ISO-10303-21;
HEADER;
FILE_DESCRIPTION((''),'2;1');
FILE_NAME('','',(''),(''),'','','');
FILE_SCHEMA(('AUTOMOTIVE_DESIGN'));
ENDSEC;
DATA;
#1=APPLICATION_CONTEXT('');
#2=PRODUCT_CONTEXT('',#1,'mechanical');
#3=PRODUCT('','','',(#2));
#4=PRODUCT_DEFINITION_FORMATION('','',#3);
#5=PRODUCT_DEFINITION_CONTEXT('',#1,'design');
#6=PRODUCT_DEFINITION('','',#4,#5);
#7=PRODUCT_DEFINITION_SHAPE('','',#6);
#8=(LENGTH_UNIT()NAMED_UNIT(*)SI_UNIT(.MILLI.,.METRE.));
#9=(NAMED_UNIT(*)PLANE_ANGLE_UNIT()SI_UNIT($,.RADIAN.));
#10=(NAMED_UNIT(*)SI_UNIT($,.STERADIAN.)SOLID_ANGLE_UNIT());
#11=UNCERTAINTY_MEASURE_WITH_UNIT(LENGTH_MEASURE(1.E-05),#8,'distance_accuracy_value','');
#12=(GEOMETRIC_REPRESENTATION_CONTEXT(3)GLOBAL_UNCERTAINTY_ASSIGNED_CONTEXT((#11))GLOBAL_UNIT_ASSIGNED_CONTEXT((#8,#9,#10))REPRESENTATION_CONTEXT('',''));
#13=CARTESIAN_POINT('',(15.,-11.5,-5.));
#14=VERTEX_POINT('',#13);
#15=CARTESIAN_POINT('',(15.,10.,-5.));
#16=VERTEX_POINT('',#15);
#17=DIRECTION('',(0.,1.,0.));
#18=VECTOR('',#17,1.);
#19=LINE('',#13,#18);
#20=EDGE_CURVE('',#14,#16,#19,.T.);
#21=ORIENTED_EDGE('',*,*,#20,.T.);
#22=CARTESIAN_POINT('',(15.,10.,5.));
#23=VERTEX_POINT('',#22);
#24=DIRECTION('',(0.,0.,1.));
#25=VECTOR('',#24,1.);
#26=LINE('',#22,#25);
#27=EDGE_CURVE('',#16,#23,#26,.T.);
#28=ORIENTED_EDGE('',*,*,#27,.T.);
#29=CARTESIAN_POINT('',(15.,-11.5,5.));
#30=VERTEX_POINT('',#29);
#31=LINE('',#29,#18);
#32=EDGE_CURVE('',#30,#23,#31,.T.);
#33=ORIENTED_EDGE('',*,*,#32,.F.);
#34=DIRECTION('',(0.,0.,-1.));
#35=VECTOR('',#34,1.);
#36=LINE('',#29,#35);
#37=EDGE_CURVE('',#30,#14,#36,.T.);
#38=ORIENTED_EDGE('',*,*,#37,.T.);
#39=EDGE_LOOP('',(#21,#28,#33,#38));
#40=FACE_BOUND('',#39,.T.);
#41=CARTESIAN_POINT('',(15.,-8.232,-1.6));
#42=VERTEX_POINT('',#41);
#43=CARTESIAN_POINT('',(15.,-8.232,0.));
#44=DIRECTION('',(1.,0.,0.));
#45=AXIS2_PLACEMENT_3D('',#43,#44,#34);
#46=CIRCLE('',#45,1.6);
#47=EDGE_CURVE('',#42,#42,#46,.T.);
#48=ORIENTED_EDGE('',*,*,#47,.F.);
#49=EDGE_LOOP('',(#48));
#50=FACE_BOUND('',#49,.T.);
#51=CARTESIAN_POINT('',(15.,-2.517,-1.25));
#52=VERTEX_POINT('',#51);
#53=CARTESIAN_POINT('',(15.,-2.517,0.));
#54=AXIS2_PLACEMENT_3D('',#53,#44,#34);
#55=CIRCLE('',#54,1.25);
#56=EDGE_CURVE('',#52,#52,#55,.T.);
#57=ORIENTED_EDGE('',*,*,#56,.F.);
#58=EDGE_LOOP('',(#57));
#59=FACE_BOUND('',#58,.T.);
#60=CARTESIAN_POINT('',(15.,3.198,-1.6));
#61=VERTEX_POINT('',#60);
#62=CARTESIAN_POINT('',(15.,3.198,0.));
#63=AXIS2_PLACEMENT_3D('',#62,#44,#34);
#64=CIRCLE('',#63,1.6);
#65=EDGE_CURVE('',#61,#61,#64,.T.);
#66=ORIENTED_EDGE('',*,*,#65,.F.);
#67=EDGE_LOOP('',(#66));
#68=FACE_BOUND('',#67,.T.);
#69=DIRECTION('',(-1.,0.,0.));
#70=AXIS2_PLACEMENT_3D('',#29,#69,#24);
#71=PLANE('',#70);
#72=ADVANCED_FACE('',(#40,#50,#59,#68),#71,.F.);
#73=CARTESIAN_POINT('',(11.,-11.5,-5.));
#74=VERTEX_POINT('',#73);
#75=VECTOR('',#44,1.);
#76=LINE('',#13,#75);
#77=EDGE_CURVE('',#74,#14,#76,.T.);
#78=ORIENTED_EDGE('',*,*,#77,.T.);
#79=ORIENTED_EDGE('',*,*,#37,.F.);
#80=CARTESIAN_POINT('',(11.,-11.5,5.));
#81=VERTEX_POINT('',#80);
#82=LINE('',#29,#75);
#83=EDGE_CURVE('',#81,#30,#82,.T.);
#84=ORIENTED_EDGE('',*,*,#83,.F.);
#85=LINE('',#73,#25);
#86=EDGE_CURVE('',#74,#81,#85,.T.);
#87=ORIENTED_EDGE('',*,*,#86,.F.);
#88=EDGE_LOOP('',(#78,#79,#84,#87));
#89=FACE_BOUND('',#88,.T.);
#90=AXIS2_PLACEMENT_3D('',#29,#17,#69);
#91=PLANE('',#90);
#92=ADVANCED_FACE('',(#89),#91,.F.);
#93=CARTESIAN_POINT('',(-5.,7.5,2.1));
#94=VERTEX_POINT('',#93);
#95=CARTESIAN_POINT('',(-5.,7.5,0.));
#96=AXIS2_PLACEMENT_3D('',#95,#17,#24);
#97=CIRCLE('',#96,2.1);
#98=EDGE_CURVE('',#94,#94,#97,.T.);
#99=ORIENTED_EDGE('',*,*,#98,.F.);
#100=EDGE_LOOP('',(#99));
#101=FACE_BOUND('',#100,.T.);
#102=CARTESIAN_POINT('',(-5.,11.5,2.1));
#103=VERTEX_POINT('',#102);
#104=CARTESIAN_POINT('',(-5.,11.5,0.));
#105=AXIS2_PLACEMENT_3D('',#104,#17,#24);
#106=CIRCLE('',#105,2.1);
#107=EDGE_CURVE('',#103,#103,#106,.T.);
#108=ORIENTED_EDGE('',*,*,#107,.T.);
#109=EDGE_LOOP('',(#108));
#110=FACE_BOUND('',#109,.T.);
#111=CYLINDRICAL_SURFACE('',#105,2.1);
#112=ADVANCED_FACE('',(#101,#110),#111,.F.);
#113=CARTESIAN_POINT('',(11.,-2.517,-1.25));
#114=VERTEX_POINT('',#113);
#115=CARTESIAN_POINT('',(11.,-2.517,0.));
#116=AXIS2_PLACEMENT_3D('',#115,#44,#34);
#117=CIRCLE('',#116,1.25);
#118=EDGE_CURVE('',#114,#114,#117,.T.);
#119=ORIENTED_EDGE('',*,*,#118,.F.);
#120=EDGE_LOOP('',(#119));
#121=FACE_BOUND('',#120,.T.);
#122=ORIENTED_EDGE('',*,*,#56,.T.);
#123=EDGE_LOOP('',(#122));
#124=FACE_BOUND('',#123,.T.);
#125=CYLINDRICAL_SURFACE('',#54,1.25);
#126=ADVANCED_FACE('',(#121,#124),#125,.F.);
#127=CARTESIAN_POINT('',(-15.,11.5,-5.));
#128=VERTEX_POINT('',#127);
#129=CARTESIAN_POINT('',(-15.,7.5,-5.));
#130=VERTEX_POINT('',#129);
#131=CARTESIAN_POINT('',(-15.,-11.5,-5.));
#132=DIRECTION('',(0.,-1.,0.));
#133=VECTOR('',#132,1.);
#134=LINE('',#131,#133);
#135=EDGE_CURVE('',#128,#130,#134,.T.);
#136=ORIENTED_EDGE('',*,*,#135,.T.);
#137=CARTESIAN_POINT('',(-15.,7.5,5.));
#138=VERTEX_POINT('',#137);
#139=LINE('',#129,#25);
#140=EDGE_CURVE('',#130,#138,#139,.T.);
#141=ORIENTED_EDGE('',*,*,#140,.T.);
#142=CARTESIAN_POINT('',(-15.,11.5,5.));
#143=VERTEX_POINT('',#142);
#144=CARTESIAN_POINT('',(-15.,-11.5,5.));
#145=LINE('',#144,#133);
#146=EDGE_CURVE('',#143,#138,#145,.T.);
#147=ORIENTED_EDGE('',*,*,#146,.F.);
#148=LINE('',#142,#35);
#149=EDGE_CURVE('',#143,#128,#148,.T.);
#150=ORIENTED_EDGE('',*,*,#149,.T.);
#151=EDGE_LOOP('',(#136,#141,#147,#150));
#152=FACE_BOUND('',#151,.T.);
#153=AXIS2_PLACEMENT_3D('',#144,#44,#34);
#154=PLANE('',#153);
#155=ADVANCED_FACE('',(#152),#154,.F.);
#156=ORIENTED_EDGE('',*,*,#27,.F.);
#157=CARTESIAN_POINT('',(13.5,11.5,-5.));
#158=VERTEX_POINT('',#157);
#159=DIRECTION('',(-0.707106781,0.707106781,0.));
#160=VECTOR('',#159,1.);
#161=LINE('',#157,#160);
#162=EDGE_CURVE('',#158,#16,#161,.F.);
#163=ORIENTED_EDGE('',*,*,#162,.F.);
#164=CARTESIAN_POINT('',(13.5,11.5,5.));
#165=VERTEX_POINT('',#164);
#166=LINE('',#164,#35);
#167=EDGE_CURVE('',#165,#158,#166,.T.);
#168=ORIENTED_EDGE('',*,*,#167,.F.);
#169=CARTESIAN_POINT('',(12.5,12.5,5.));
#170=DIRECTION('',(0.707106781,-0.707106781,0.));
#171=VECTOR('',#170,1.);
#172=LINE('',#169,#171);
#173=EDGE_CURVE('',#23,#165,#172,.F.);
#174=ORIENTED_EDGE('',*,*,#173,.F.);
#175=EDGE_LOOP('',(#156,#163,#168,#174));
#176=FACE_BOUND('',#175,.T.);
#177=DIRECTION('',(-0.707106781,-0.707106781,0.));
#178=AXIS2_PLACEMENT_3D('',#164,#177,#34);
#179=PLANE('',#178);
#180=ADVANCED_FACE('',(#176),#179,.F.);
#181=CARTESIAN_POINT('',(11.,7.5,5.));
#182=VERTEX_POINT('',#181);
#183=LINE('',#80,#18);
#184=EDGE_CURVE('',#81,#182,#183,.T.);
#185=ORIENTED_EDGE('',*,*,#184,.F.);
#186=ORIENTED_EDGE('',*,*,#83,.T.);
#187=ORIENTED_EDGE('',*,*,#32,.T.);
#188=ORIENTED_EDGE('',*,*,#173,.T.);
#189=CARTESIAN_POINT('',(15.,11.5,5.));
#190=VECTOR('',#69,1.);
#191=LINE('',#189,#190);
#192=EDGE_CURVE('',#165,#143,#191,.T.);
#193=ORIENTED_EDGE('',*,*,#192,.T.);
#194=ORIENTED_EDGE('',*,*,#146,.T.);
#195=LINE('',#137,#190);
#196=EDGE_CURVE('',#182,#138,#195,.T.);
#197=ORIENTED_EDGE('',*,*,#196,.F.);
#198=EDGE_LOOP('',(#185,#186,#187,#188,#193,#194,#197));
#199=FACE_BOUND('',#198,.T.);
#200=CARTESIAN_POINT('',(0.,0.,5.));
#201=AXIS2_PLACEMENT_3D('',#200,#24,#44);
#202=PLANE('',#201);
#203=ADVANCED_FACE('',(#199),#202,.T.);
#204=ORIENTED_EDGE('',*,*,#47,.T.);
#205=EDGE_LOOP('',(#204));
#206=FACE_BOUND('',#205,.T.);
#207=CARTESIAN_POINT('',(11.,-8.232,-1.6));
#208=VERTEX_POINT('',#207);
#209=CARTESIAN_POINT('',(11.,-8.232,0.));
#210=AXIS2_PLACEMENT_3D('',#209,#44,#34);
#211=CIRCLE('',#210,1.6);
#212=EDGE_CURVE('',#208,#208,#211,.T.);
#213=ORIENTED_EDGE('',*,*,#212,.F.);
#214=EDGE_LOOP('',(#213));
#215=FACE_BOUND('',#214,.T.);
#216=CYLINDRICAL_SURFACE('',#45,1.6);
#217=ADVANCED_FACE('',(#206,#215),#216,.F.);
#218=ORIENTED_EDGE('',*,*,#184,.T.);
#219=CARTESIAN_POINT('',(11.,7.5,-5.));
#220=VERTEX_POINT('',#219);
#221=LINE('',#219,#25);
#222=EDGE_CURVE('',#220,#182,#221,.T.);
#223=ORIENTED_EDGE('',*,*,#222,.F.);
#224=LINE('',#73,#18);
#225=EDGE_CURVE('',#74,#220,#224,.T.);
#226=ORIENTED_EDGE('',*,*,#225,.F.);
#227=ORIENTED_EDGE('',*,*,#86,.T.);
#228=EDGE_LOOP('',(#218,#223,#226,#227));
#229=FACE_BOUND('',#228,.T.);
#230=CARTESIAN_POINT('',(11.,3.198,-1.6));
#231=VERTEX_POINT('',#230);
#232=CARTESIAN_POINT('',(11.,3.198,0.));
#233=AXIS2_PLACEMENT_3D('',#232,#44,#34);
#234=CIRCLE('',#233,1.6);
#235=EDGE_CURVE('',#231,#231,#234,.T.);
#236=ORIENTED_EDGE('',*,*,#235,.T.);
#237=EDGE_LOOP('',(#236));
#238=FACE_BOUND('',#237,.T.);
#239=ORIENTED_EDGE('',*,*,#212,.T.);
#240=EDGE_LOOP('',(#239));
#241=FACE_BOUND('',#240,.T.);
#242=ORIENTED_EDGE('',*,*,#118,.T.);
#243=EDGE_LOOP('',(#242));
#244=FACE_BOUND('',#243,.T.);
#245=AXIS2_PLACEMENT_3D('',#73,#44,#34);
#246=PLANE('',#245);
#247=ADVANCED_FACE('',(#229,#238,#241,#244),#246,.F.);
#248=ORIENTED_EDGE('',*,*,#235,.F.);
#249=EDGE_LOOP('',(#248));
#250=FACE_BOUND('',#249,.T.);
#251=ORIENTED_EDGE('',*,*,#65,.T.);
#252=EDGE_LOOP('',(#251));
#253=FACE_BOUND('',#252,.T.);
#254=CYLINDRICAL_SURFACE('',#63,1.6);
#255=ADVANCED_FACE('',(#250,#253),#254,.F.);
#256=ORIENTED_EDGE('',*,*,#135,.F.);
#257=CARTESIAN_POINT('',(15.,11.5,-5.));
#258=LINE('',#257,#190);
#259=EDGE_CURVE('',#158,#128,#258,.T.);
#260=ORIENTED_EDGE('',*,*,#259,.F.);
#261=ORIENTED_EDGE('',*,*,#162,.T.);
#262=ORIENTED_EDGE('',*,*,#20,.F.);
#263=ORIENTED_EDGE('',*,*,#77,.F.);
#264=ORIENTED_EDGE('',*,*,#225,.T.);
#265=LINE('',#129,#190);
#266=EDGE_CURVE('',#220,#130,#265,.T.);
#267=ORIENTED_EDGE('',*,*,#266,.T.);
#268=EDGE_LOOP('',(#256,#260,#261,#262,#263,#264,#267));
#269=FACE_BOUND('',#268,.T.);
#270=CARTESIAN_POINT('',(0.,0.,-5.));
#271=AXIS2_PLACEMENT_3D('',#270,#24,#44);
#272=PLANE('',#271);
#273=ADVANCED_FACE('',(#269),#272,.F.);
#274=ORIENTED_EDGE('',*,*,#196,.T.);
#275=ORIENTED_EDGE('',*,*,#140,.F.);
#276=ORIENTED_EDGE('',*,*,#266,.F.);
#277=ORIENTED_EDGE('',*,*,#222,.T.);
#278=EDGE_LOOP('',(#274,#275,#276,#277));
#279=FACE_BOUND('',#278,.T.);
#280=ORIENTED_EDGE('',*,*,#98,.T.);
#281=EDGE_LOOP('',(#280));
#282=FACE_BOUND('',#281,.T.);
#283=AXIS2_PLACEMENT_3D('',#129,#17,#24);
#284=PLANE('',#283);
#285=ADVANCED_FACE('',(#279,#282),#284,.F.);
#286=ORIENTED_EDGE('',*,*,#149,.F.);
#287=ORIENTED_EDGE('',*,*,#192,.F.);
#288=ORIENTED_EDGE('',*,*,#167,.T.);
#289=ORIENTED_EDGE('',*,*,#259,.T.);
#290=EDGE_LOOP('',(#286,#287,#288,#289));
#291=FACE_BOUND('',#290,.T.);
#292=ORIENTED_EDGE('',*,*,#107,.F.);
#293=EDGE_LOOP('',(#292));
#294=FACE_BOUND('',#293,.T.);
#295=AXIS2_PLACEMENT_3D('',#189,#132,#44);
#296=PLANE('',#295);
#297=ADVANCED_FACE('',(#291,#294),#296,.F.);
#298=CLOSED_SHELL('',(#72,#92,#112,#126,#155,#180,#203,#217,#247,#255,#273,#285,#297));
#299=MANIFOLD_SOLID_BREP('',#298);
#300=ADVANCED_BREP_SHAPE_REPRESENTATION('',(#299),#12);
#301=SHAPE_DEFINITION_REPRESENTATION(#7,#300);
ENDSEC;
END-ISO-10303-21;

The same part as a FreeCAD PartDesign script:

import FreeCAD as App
import Part
import Sketcher
Q = App.Units.Quantity


def edges_at(feature, points):
    """Names of the edges that pass closest to the given points."""
    edges = feature.Shape.Edges
    near = lambda p: min(range(len(edges)), key=lambda i: edges[i].distToShape(Part.Vertex(*p))[0])
    return sorted({f"Edge{near(p) + 1}" for p in points})


def add_polygon(sketch, points):
    """Adds a closed chain of lines whose ends are joined by coincident constraints."""
    first, n = sketch.GeometryCount, len(points)
    for a, b in zip(points, points[1:] + points[:1]):
        sketch.addGeometry(Part.LineSegment(App.Vector(*a, 0), App.Vector(*b, 0)), False)
    for i in range(n):
        sketch.addConstraint(Sketcher.Constraint("Coincident", first + i, 2, first + (i + 1) % n, 1))

doc = App.newDocument("Part")
body = doc.addObject("PartDesign::Body", "Body")

# Sketch on XY plane
sketch1 = body.newObject("Sketcher::SketchObject", "Sketch")
sketch1.AttachmentSupport = (doc.getObject("XY_Plane"), [""])
sketch1.MapMode = "FlatFace"
add_polygon(sketch1, [(-15, 12), (-15, -12), (15, -12), (15, 12)])  # lines 0-3
sketch1.addConstraint([
    Sketcher.Constraint("Vertical", 0),
    Sketcher.Constraint("Horizontal", 1),
    Sketcher.Constraint("Vertical", 2),
    Sketcher.Constraint("Horizontal", 3),
    Sketcher.Constraint("Symmetric", 0, 2, 2, 2, -1, 1),
    Sketcher.Constraint("DistanceX", 1, 1, 1, 2, Q("30 mm")),
    Sketcher.Constraint("DistanceY", 0, 2, 0, 1, Q("23 mm")),
])
pad1 = body.newObject("PartDesign::Pad", "Pad")
pad1.Profile = sketch1
pad1.Length = 10
pad1.Midplane = True

# Sketch on XY plane
sketch2 = body.newObject("Sketcher::SketchObject", "Sketch001")
sketch2.AttachmentSupport = (doc.getObject("XY_Plane"), [""])
sketch2.MapMode = "FlatFace"
sketch2.AttachmentOffset = App.Placement(App.Vector(0, 0, 5), App.Rotation())
add_polygon(sketch2, [(-15, 8), (-15, -12), (11, -12), (11, 8)])  # lines 0-3
sketch2.addConstraint([
    Sketcher.Constraint("Vertical", 0),
    Sketcher.Constraint("Horizontal", 1),
    Sketcher.Constraint("Vertical", 2),
    Sketcher.Constraint("Horizontal", 3),
    Sketcher.Constraint("DistanceX", 1, 1, 1, 2, Q("26 mm")),
    Sketcher.Constraint("DistanceY", 0, 2, 0, 1, Q("19 mm")),
    Sketcher.Constraint("DistanceX", 0, 2, -1, 1, Q("15 mm")),
    Sketcher.Constraint("DistanceY", 0, 2, -1, 1, Q("11.5 mm")),
])
pocket1 = body.newObject("PartDesign::Pocket", "Pocket")
pocket1.Profile = sketch2
pocket1.Type = "ThroughAll"
doc.recompute()

chamfer = body.newObject("PartDesign::Chamfer", "Chamfer")
chamfer.Base = (pocket1, edges_at(pocket1, [(15, 11.5, 0)]))
chamfer.Size = 1.5

# Sketch on XZ plane
sketch3 = body.newObject("Sketcher::SketchObject", "Sketch002")
sketch3.AttachmentSupport = (doc.getObject("XZ_Plane"), [""])
sketch3.MapMode = "FlatFace"
sketch3.AttachmentOffset = App.Placement(App.Vector(0, 0, -11.5), App.Rotation())
sketch3.addGeometry(Part.Circle(App.Vector(-5, 0, 0), App.Vector(0, 0, 1), 2.1), False)
sketch3.addConstraint([
    Sketcher.Constraint("PointOnObject", 0, 3, -1),
    Sketcher.Constraint("Diameter", 0, Q("4.2 mm")),
    Sketcher.Constraint("DistanceX", 0, 3, -1, 1, Q("5 mm")),
])
doc.recompute()
hole = body.newObject("PartDesign::Hole", "Hole")
hole.Profile = sketch3
hole.ThreadType = "None"
hole.Diameter = 4.2
hole.DepthType = "ThroughAll"
hole.Reversed = True

# Sketch on YZ plane
sketch4 = body.newObject("Sketcher::SketchObject", "Sketch003")
sketch4.AttachmentSupport = (doc.getObject("YZ_Plane"), [""])
sketch4.MapMode = "FlatFace"
sketch4.AttachmentOffset = App.Placement(App.Vector(0, 0, 15), App.Rotation())
sketch4.addGeometry([
    Part.Circle(App.Vector(-8.2, 0, 0), App.Vector(0, 0, 1), 1.6),
    Part.Circle(App.Vector(3.2, 0, 0), App.Vector(0, 0, 1), 1.6),
], False)
sketch4.addConstraint([
    Sketcher.Constraint("Equal", 0, 1),
    Sketcher.Constraint("PointOnObject", 0, 3, -1),
    Sketcher.Constraint("PointOnObject", 1, 3, -1),
    Sketcher.Constraint("Diameter", 0, Q("3.2 mm")),
    Sketcher.Constraint("DistanceX", 0, 3, 1, 3, Q("11.43 mm")),
    Sketcher.Constraint("DistanceX", 0, 3, -1, 1, Q("8.232 mm")),
])
doc.recompute()
hole2 = body.newObject("PartDesign::Hole", "Hole001")
hole2.Profile = sketch4
hole2.ThreadType = "None"
hole2.Diameter = 3.2
hole2.DepthType = "ThroughAll"

# Sketch on YZ plane
sketch5 = body.newObject("Sketcher::SketchObject", "Sketch004")
sketch5.AttachmentSupport = (doc.getObject("YZ_Plane"), [""])
sketch5.MapMode = "FlatFace"
sketch5.AttachmentOffset = App.Placement(App.Vector(0, 0, 15), App.Rotation())
sketch5.addGeometry(Part.Circle(App.Vector(-2.5, 0, 0), App.Vector(0, 0, 1), 1.2), False)
sketch5.addConstraint([
    Sketcher.Constraint("PointOnObject", 0, 3, -1),
    Sketcher.Constraint("Diameter", 0, Q("2.5 mm")),
    Sketcher.Constraint("DistanceX", 0, 3, -1, 1, Q("2.517 mm")),
])
doc.recompute()
hole3 = body.newObject("PartDesign::Hole", "Hole002")
hole3.Profile = sketch5
hole3.ThreadType = "None"
hole3.Diameter = 2.5
hole3.DepthType = "ThroughAll"

doc.recompute()
